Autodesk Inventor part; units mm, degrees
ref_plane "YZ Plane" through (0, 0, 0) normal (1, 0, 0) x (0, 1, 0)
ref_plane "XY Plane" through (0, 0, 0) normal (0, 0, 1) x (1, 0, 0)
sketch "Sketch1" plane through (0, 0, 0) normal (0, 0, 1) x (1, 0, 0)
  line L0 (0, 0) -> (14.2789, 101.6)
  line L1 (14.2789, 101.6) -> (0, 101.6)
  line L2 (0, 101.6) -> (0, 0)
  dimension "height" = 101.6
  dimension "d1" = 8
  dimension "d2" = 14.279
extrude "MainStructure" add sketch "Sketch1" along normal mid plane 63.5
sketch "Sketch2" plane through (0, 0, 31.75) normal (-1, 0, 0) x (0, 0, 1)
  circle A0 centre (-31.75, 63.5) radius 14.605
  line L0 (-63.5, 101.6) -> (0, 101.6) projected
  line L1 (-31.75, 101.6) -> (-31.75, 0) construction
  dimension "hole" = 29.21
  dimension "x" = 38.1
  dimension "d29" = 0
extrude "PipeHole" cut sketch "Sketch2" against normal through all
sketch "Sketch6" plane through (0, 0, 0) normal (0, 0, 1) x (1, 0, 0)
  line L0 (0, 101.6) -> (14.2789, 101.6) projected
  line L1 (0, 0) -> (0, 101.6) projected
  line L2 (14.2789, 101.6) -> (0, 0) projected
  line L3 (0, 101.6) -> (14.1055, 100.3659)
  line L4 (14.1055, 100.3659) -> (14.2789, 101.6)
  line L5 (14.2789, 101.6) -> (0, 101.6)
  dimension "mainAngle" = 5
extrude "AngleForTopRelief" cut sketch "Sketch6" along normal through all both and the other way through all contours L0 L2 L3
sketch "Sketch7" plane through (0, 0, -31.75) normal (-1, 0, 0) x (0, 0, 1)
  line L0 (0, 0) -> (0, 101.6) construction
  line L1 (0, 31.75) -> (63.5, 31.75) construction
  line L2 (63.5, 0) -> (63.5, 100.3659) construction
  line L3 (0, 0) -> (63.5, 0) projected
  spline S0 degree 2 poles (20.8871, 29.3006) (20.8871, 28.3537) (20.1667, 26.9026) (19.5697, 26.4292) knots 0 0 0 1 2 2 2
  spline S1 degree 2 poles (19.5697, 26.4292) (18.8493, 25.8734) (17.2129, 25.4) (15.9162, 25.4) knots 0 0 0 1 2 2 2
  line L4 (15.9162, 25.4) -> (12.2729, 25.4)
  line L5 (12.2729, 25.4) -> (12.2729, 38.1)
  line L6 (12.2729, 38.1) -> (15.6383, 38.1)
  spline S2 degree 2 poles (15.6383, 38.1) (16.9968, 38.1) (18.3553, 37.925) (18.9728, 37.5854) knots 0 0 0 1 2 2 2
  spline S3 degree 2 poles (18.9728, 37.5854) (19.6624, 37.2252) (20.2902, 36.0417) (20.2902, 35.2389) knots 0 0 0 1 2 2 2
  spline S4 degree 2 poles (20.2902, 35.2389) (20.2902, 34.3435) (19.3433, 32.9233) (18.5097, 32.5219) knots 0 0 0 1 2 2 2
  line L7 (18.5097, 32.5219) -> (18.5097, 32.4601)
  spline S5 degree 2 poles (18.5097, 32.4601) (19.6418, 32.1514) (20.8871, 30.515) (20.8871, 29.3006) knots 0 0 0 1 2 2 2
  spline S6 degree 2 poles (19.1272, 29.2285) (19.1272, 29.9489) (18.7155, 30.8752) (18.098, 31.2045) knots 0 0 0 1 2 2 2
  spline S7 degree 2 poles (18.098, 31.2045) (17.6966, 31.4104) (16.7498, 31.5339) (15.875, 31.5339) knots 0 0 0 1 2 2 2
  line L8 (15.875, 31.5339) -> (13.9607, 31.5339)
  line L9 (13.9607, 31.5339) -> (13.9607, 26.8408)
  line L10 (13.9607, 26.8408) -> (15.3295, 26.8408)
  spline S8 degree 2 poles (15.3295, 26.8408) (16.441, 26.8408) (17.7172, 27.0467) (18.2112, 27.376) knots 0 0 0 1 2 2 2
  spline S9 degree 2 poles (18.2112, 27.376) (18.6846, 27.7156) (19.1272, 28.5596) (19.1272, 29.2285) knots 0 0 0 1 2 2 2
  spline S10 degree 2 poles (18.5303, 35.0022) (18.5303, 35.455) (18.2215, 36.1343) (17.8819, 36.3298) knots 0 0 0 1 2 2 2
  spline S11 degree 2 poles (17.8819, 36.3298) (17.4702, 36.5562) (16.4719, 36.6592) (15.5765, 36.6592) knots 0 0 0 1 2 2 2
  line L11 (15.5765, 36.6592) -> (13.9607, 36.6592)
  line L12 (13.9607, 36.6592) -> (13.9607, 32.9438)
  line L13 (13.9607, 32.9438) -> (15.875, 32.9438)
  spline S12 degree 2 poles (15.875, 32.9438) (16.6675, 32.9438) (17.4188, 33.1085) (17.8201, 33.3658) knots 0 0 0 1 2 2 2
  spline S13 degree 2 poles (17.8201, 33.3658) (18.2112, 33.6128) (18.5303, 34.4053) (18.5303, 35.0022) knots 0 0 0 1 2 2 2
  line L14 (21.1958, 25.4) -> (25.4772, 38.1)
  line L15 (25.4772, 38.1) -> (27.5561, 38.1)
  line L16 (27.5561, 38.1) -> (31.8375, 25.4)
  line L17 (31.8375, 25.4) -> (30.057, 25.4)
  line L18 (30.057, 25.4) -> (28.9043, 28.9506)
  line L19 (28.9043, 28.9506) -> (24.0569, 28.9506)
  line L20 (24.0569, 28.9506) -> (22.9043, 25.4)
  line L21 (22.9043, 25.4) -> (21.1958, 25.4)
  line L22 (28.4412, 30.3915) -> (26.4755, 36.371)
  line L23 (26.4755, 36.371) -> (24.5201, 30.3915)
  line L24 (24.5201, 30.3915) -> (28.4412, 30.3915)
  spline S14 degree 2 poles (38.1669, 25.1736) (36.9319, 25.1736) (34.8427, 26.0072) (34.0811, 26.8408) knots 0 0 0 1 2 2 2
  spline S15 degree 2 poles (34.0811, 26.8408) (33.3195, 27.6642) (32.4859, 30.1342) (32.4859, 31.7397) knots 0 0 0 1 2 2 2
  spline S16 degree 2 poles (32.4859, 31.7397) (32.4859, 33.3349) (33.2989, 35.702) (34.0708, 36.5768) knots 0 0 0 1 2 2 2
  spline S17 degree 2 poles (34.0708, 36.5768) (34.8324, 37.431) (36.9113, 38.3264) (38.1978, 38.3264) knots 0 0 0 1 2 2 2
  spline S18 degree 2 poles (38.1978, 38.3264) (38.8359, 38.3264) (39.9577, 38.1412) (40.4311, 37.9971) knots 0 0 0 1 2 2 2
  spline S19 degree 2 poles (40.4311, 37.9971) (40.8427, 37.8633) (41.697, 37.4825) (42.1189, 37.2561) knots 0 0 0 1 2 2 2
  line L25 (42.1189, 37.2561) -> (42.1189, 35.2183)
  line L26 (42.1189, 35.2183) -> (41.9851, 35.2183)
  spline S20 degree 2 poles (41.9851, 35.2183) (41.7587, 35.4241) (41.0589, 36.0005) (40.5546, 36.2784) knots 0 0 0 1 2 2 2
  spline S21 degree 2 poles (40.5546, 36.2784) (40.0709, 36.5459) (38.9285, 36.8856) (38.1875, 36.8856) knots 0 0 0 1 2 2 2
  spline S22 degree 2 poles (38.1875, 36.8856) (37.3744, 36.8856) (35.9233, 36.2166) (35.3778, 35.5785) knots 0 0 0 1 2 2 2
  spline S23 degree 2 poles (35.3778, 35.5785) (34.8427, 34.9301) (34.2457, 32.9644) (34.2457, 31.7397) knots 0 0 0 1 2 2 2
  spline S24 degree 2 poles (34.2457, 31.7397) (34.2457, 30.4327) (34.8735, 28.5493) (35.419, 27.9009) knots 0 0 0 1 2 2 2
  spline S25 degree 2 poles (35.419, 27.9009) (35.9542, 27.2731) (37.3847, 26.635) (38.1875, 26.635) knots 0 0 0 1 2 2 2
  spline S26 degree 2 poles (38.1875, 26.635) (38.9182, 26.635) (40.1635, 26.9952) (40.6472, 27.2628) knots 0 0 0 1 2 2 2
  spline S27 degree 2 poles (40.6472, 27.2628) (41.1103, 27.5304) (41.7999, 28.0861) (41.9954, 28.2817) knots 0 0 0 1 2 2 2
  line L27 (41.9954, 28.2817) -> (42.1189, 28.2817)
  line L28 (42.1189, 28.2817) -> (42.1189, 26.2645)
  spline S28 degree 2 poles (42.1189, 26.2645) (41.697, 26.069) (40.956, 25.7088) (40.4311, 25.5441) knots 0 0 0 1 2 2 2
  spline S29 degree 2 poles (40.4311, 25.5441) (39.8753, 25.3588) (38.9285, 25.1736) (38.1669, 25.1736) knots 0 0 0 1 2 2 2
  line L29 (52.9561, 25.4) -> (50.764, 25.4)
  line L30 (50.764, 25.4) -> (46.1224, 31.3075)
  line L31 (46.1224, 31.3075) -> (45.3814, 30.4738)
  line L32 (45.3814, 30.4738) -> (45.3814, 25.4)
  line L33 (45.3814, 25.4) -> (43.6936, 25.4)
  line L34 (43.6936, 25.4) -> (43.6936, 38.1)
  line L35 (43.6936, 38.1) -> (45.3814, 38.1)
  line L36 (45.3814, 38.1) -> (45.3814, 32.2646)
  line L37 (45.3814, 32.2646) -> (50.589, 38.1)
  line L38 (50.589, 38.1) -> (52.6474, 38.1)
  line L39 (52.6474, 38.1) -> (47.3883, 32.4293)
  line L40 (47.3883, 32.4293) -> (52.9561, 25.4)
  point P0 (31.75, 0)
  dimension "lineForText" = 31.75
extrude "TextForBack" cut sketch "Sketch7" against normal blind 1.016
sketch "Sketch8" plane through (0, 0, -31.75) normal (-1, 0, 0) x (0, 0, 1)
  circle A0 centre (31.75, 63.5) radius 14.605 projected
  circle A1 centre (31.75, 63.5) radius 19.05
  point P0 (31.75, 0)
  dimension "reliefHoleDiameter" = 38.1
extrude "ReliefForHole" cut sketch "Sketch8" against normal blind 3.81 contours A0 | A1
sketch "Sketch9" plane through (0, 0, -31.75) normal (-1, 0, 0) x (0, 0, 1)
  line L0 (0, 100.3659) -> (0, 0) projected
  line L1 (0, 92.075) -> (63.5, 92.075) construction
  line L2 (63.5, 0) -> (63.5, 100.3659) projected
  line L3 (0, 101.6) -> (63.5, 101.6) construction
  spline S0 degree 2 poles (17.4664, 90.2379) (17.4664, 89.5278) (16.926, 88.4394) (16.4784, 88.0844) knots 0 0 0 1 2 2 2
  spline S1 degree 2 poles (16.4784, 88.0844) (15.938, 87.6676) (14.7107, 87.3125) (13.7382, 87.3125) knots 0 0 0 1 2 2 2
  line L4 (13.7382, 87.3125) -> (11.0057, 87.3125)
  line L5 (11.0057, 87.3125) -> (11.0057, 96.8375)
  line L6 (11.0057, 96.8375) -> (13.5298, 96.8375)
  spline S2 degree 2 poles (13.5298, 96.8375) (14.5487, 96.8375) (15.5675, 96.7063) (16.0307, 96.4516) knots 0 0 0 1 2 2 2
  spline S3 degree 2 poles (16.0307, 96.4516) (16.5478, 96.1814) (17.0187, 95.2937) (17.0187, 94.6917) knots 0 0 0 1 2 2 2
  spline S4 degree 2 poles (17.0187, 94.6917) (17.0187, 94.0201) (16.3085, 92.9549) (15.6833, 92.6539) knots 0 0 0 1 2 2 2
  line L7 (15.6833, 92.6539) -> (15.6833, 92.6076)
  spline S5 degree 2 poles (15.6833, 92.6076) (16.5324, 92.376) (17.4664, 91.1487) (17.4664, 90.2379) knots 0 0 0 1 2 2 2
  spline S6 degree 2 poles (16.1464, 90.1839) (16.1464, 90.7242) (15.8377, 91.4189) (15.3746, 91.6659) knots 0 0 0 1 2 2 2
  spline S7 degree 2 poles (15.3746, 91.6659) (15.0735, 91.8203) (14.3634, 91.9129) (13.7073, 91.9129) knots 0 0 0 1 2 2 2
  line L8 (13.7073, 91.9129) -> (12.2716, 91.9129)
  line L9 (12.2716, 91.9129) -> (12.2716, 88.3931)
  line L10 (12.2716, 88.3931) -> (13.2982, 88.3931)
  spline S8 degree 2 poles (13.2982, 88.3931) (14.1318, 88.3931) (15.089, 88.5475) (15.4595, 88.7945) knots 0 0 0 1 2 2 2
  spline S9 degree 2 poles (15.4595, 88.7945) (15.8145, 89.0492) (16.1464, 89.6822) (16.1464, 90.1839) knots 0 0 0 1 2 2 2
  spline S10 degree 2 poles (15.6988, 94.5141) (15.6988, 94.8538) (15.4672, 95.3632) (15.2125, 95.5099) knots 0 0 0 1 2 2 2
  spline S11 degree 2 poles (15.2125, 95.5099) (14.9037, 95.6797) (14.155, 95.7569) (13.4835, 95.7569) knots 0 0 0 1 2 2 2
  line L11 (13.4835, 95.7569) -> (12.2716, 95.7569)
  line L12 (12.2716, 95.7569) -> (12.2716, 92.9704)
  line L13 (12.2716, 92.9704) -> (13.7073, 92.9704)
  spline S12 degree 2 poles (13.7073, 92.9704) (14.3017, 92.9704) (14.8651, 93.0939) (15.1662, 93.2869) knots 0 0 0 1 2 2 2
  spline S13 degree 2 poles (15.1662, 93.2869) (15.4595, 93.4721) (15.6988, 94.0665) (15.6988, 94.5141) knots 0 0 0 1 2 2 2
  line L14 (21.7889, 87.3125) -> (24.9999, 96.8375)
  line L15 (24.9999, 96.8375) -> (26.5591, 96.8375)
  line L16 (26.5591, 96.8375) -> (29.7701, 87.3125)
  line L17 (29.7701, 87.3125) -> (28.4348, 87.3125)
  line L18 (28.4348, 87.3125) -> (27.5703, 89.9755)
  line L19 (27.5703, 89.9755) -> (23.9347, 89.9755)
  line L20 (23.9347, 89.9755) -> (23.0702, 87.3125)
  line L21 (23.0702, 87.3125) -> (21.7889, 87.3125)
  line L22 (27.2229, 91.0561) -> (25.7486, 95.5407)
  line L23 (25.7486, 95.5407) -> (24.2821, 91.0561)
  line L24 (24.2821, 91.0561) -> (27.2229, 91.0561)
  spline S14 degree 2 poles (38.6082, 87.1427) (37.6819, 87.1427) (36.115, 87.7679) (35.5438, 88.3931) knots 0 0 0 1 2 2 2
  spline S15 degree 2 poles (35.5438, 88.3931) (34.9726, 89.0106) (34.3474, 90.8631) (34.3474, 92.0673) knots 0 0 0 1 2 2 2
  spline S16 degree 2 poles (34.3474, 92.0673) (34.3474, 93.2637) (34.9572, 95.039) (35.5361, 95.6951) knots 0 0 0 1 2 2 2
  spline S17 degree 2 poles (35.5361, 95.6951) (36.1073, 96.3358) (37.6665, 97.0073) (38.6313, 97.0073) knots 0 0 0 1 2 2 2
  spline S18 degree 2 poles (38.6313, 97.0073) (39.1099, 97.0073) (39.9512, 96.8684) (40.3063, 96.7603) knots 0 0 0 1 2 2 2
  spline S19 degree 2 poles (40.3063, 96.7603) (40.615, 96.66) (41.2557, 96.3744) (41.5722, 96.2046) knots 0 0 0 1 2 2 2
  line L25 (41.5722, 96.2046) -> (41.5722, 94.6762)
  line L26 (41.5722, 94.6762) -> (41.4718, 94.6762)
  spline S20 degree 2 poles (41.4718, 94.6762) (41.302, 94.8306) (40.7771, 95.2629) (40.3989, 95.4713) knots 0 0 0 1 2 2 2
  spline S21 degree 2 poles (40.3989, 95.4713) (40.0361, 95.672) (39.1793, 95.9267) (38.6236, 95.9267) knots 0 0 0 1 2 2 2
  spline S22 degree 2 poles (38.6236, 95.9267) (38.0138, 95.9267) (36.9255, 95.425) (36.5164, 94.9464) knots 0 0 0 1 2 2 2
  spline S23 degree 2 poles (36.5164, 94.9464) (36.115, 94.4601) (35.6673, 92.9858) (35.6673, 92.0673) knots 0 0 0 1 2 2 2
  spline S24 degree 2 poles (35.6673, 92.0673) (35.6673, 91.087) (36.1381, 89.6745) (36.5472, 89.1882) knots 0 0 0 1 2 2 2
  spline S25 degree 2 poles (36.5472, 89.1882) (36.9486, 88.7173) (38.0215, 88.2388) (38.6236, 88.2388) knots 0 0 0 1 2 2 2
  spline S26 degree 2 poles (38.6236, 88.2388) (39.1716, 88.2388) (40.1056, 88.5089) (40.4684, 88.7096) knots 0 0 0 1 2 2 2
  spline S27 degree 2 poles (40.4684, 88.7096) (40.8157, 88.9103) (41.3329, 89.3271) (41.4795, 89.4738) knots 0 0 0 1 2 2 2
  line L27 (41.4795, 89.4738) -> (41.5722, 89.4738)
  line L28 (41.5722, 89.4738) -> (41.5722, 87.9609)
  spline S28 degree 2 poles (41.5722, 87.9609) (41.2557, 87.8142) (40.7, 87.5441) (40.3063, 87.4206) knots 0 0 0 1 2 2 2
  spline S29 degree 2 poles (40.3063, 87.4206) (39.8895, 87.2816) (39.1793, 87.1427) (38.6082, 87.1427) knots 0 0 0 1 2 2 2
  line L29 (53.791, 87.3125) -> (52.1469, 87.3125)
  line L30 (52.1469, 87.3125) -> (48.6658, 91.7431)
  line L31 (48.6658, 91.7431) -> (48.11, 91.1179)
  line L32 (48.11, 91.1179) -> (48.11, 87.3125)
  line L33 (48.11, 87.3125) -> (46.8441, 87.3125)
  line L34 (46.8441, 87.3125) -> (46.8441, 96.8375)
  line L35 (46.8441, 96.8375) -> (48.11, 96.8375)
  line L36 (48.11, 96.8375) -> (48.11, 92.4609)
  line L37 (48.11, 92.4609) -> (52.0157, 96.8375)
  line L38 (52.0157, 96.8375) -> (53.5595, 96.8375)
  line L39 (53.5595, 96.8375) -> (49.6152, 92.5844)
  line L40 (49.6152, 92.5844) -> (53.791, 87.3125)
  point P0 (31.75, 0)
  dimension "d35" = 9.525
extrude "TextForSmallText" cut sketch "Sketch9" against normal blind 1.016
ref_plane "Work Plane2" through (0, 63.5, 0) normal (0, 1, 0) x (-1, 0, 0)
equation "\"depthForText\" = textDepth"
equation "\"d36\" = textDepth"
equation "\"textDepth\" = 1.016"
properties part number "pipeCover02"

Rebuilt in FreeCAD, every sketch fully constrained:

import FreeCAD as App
import Part
import Sketcher
Q = App.Units.Quantity


def add_polygon(sketch, points):
    """Adds a closed chain of lines whose ends are joined by coincident constraints."""
    first, n = sketch.GeometryCount, len(points)
    for a, b in zip(points, points[1:] + points[:1]):
        sketch.addGeometry(Part.LineSegment(App.Vector(*a, 0), App.Vector(*b, 0)), False)
    for i in range(n):
        sketch.addConstraint(Sketcher.Constraint("Coincident", first + i, 2, first + (i + 1) % n, 1))

doc = App.newDocument("Part")
body = doc.addObject("PartDesign::Body", "Body")

sketch1 = body.newObject("Sketcher::SketchObject", "Sketch")
sketch1.AttachmentSupport = (doc.getObject("XY_Plane"), [""])
sketch1.MapMode = "FlatFace"
add_polygon(sketch1, [(0, 101.6), (0, 0), (14.2789, 101.6)])
sketch1.addConstraint([
    Sketcher.Constraint("Vertical", 0),
    Sketcher.Constraint("Horizontal", 2),
    Sketcher.Constraint("Coincident", 0, 2, -1, 1),
    Sketcher.Constraint("DistanceY", 0, 2, 0, 1, Q("4 in")),
    Sketcher.Constraint("Angle", 1, Q("82 deg")),
])
pad1 = body.newObject("PartDesign::Pad", "Pad")
pad1.Profile = sketch1
pad1.Length = Q("2.5 in")
pad1.Midplane = True

sketch2 = body.newObject("Sketcher::SketchObject", "Sketch001")
sketch2.AttachmentSupport = (doc.getObject("YZ_Plane"), [""])
sketch2.MapMode = "FlatFace"
sketch2.addGeometry(Part.Circle(App.Vector(63.5, 0, 0), App.Vector(0, 0, 1), 14.605), False)
sketch2.addConstraint([
    Sketcher.Constraint("PointOnObject", 0, 3, -1),
    Sketcher.Constraint("Diameter", 0, Q("1.15 in")),
    Sketcher.Constraint("DistanceX", -1, 1, 0, 3, Q("2.5 in")),
])
pocket1 = body.newObject("PartDesign::Pocket", "Pocket")
pocket1.Profile = sketch2
pocket1.Type = "ThroughAll"
pocket1.Reversed = True

sketch3 = body.newObject("Sketcher::SketchObject", "Sketch002")
sketch3.AttachmentSupport = (doc.getObject("XY_Plane"), [""])
sketch3.MapMode = "FlatFace"
add_polygon(sketch3, [(14.2789, 101.6), (0, 101.6), (14.10546, 100.365906)])
sketch3.addConstraint([
    Sketcher.Constraint("Horizontal", 0),
    Sketcher.Constraint("PointOnObject", 0, 2, -2),
    Sketcher.Constraint("Angle", 1, Q("-5 deg")),
    Sketcher.Constraint("DistanceY", -1, 1, 0, 2, Q("4 in")),
    Sketcher.Constraint("Angle", 2, Q("82 deg")),
    Sketcher.Constraint("DistanceX", 0, 2, 0, 1, Q("14.279 mm")),
])
pocket2 = body.newObject("PartDesign::Pocket", "Pocket001")
pocket2.Profile = sketch3
pocket2.Type = "ThroughAll"
pocket2.Midplane = True

sketch4 = body.newObject("Sketcher::SketchObject", "Sketch003")
sketch4.AttachmentSupport = (doc.getObject("YZ_Plane"), [""])
sketch4.MapMode = "FlatFace"
sketch4.addGeometry(Part.BSplineCurve([App.Vector(29.3006, -10.8629, 0), App.Vector(28.3537, -10.8629, 0), App.Vector(26.9026, -11.5833, 0), App.Vector(26.4292, -12.1803, 0)], [3, 1, 3], [0, 1, 2], False, 2, [1, 1, 1, 1], False), False)
sketch4.addGeometry(Part.BSplineCurve([App.Vector(32.4601, -13.2403, 0), App.Vector(32.1514, -12.1082, 0), App.Vector(30.515, -10.8629, 0), App.Vector(29.3006, -10.8629, 0)], [3, 1, 3], [0, 1, 2], False, 2, [1, 1, 1, 1], False), False)
sketch4.addGeometry(Part.LineSegment(App.Vector(32.4601, -13.2403, 0), App.Vector(32.5219, -13.2403, 0)), False)
sketch4.addGeometry(Part.BSplineCurve([App.Vector(35.2389, -11.4598, 0), App.Vector(34.3435, -11.4598, 0), App.Vector(32.9233, -12.4067, 0), App.Vector(32.5219, -13.2403, 0)], [3, 1, 3], [0, 1, 2], False, 2, [1, 1, 1, 1], False), False)
sketch4.addGeometry(Part.BSplineCurve([App.Vector(37.5854, -12.7772, 0), App.Vector(37.2252, -12.0876, 0), App.Vector(36.0417, -11.4598, 0), App.Vector(35.2389, -11.4598, 0)], [3, 1, 3], [0, 1, 2], False, 2, [1, 1, 1, 1], False), False)
sketch4.addGeometry(Part.BSplineCurve([App.Vector(38.1, -16.1117, 0), App.Vector(38.1, -14.7532, 0), App.Vector(37.925, -13.3947, 0), App.Vector(37.5854, -12.7772, 0)], [3, 1, 3], [0, 1, 2], False, 2, [1, 1, 1, 1], False), False)
sketch4.addGeometry(Part.LineSegment(App.Vector(38.1, -16.1117, 0), App.Vector(38.1, -19.4771, 0)), False)
sketch4.addGeometry(Part.LineSegment(App.Vector(38.1, -19.4771, 0), App.Vector(25.4, -19.4771, 0)), False)
sketch4.addGeometry(Part.LineSegment(App.Vector(25.4, -19.4771, 0), App.Vector(25.4, -15.8338, 0)), False)
sketch4.addGeometry(Part.BSplineCurve([App.Vector(26.4292, -12.1803, 0), App.Vector(25.8734, -12.9007, 0), App.Vector(25.4, -14.5371, 0), App.Vector(25.4, -15.8338, 0)], [3, 1, 3], [0, 1, 2], False, 2, [1, 1, 1, 1], False), False)
sketch4.addGeometry(Part.BSplineCurve([App.Vector(29.2285, -12.6228, 0), App.Vector(29.9489, -12.6228, 0), App.Vector(30.8752, -13.0345, 0), App.Vector(31.2045, -13.652, 0)], [3, 1, 3], [0, 1, 2], False, 2, [1, 1, 1, 1], False), False)
sketch4.addGeometry(Part.BSplineCurve([App.Vector(27.376, -13.5388, 0), App.Vector(27.7156, -13.0654, 0), App.Vector(28.5596, -12.6228, 0), App.Vector(29.2285, -12.6228, 0)], [3, 1, 3], [0, 1, 2], False, 2, [1, 1, 1, 1], False), False)
sketch4.addGeometry(Part.BSplineCurve([App.Vector(26.8408, -16.4205, 0), App.Vector(26.8408, -15.309, 0), App.Vector(27.0467, -14.0328, 0), App.Vector(27.376, -13.5388, 0)], [3, 1, 3], [0, 1, 2], False, 2, [1, 1, 1, 1], False), False)
sketch4.addGeometry(Part.LineSegment(App.Vector(26.8408, -16.4205, 0), App.Vector(26.8408, -17.7893, 0)), False)
sketch4.addGeometry(Part.LineSegment(App.Vector(26.8408, -17.7893, 0), App.Vector(31.5339, -17.7893, 0)), False)
sketch4.addGeometry(Part.LineSegment(App.Vector(31.5339, -17.7893, 0), App.Vector(31.5339, -15.875, 0)), False)
sketch4.addGeometry(Part.BSplineCurve([App.Vector(31.2045, -13.652, 0), App.Vector(31.4104, -14.0534, 0), App.Vector(31.5339, -15.0002, 0), App.Vector(31.5339, -15.875, 0)], [3, 1, 3], [0, 1, 2], False, 2, [1, 1, 1, 1], False), False)
sketch4.addGeometry(Part.BSplineCurve([App.Vector(35.0022, -13.2197, 0), App.Vector(35.455, -13.2197, 0), App.Vector(36.1343, -13.5285, 0), App.Vector(36.3298, -13.8681, 0)], [3, 1, 3], [0, 1, 2], False, 2, [1, 1, 1, 1], False), False)
sketch4.addGeometry(Part.BSplineCurve([App.Vector(33.3658, -13.9299, 0), App.Vector(33.6128, -13.5388, 0), App.Vector(34.4053, -13.2197, 0), App.Vector(35.0022, -13.2197, 0)], [3, 1, 3], [0, 1, 2], False, 2, [1, 1, 1, 1], False), False)
sketch4.addGeometry(Part.BSplineCurve([App.Vector(32.9438, -15.875, 0), App.Vector(32.9438, -15.0825, 0), App.Vector(33.1085, -14.3312, 0), App.Vector(33.3658, -13.9299, 0)], [3, 1, 3], [0, 1, 2], False, 2, [1, 1, 1, 1], False), False)
sketch4.addGeometry(Part.LineSegment(App.Vector(32.9438, -15.875, 0), App.Vector(32.9438, -17.7893, 0)), False)
sketch4.addGeometry(Part.LineSegment(App.Vector(32.9438, -17.7893, 0), App.Vector(36.6592, -17.7893, 0)), False)
sketch4.addGeometry(Part.LineSegment(App.Vector(36.6592, -17.7893, 0), App.Vector(36.6592, -16.1735, 0)), False)
sketch4.addGeometry(Part.BSplineCurve([App.Vector(36.3298, -13.8681, 0), App.Vector(36.5562, -14.2798, 0), App.Vector(36.6592, -15.2781, 0), App.Vector(36.6592, -16.1735, 0)], [3, 1, 3], [0, 1, 2], False, 2, [1, 1, 1, 1], False), False)
add_polygon(sketch4, [(38.1, -6.2728), (25.4, -10.5542), (25.4, -8.8457), (28.9506, -7.6931), (28.9506, -2.8457), (25.4, -1.693), (25.4, 0.0875), (38.1, -4.1939)])
add_polygon(sketch4, [(36.371, -5.2745), (30.3915, -3.3088), (30.3915, -7.2299)])
sketch4.addGeometry(Part.BSplineCurve([App.Vector(25.1736, 6.4169, 0), App.Vector(25.1736, 5.1819, 0), App.Vector(26.0072, 3.0927, 0), App.Vector(26.8408, 2.3311, 0)], [3, 1, 3], [0, 1, 2], False, 2, [1, 1, 1, 1], False), False)
sketch4.addGeometry(Part.BSplineCurve([App.Vector(25.5441, 8.6811, 0), App.Vector(25.3588, 8.1253, 0), App.Vector(25.1736, 7.1785, 0), App.Vector(25.1736, 6.4169, 0)], [3, 1, 3], [0, 1, 2], False, 2, [1, 1, 1, 1], False), False)
sketch4.addGeometry(Part.BSplineCurve([App.Vector(26.2645, 10.3689, 0), App.Vector(26.069, 9.947, 0), App.Vector(25.7088, 9.206, 0), App.Vector(25.5441, 8.6811, 0)], [3, 1, 3], [0, 1, 2], False, 2, [1, 1, 1, 1], False), False)
sketch4.addGeometry(Part.LineSegment(App.Vector(26.2645, 10.3689, 0), App.Vector(28.2817, 10.3689, 0)), False)
sketch4.addGeometry(Part.LineSegment(App.Vector(28.2817, 10.3689, 0), App.Vector(28.2817, 10.2454, 0)), False)
sketch4.addGeometry(Part.BSplineCurve([App.Vector(27.2628, 8.8972, 0), App.Vector(27.5304, 9.3603, 0), App.Vector(28.0861, 10.0499, 0), App.Vector(28.2817, 10.2454, 0)], [3, 1, 3], [0, 1, 2], False, 2, [1, 1, 1, 1], False), False)
sketch4.addGeometry(Part.BSplineCurve([App.Vector(26.635, 6.4375, 0), App.Vector(26.635, 7.1682, 0), App.Vector(26.9952, 8.4135, 0), App.Vector(27.2628, 8.8972, 0)], [3, 1, 3], [0, 1, 2], False, 2, [1, 1, 1, 1], False), False)
sketch4.addGeometry(Part.BSplineCurve([App.Vector(27.9009, 3.669, 0), App.Vector(27.2731, 4.2042, 0), App.Vector(26.635, 5.6347, 0), App.Vector(26.635, 6.4375, 0)], [3, 1, 3], [0, 1, 2], False, 2, [1, 1, 1, 1], False), False)
sketch4.addGeometry(Part.BSplineCurve([App.Vector(31.7397, 2.4957, 0), App.Vector(30.4327, 2.4957, 0), App.Vector(28.5493, 3.1235, 0), App.Vector(27.9009, 3.669, 0)], [3, 1, 3], [0, 1, 2], False, 2, [1, 1, 1, 1], False), False)
sketch4.addGeometry(Part.BSplineCurve([App.Vector(35.5785, 3.6278, 0), App.Vector(34.9301, 3.0927, 0), App.Vector(32.9644, 2.4957, 0), App.Vector(31.7397, 2.4957, 0)], [3, 1, 3], [0, 1, 2], False, 2, [1, 1, 1, 1], False), False)
sketch4.addGeometry(Part.BSplineCurve([App.Vector(36.8856, 6.4375, 0), App.Vector(36.8856, 5.6244, 0), App.Vector(36.2166, 4.1733, 0), App.Vector(35.5785, 3.6278, 0)], [3, 1, 3], [0, 1, 2], False, 2, [1, 1, 1, 1], False), False)
sketch4.addGeometry(Part.BSplineCurve([App.Vector(36.2784, 8.8046, 0), App.Vector(36.5459, 8.3209, 0), App.Vector(36.8856, 7.1785, 0), App.Vector(36.8856, 6.4375, 0)], [3, 1, 3], [0, 1, 2], False, 2, [1, 1, 1, 1], False), False)
sketch4.addGeometry(Part.BSplineCurve([App.Vector(35.2183, 10.2351, 0), App.Vector(35.4241, 10.0087, 0), App.Vector(36.0005, 9.3089, 0), App.Vector(36.2784, 8.8046, 0)], [3, 1, 3], [0, 1, 2], False, 2, [1, 1, 1, 1], False), False)
sketch4.addGeometry(Part.LineSegment(App.Vector(35.2183, 10.2351, 0), App.Vector(35.2183, 10.3689, 0)), False)
sketch4.addGeometry(Part.LineSegment(App.Vector(35.2183, 10.3689, 0), App.Vector(37.2561, 10.3689, 0)), False)
sketch4.addGeometry(Part.BSplineCurve([App.Vector(37.9971, 8.6811, 0), App.Vector(37.8633, 9.0927, 0), App.Vector(37.4825, 9.947, 0), App.Vector(37.2561, 10.3689, 0)], [3, 1, 3], [0, 1, 2], False, 2, [1, 1, 1, 1], False), False)
sketch4.addGeometry(Part.BSplineCurve([App.Vector(38.3264, 6.4478, 0), App.Vector(38.3264, 7.0859, 0), App.Vector(38.1412, 8.2077, 0), App.Vector(37.9971, 8.6811, 0)], [3, 1, 3], [0, 1, 2], False, 2, [1, 1, 1, 1], False), False)
sketch4.addGeometry(Part.BSplineCurve([App.Vector(36.5768, 2.3208, 0), App.Vector(37.431, 3.0824, 0), App.Vector(38.3264, 5.1613, 0), App.Vector(38.3264, 6.4478, 0)], [3, 1, 3], [0, 1, 2], False, 2, [1, 1, 1, 1], False), False)
sketch4.addGeometry(Part.BSplineCurve([App.Vector(31.7397, 0.7359, 0), App.Vector(33.3349, 0.7359, 0), App.Vector(35.702, 1.5489, 0), App.Vector(36.5768, 2.3208, 0)], [3, 1, 3], [0, 1, 2], False, 2, [1, 1, 1, 1], False), False)
sketch4.addGeometry(Part.BSplineCurve([App.Vector(26.8408, 2.3311, 0), App.Vector(27.6642, 1.5695, 0), App.Vector(30.1342, 0.7359, 0), App.Vector(31.7397, 0.7359, 0)], [3, 1, 3], [0, 1, 2], False, 2, [1, 1, 1, 1], False), False)
add_polygon(sketch4, [(25.4, 19.014), (25.4, 21.2061), (32.4293, 15.6383), (38.1, 20.8974), (38.1, 18.839), (32.2646, 13.6314), (38.1, 13.6314), (38.1, 11.9436), (25.4, 11.9436), (25.4, 13.6314), (30.4738, 13.6314), (31.3075, 14.3724)])
sketch4.addConstraint([
    Sketcher.Constraint("Block", 0),
    Sketcher.Constraint("Block", 1),
    Sketcher.Constraint("Block", 3),
    Sketcher.Constraint("Block", 4),
    Sketcher.Constraint("Block", 5),
    Sketcher.Constraint("Block", 9),
    Sketcher.Constraint("Block", 10),
    Sketcher.Constraint("Block", 11),
    Sketcher.Constraint("Block", 12),
    Sketcher.Constraint("Block", 16),
    Sketcher.Constraint("Block", 17),
    Sketcher.Constraint("Block", 18),
    Sketcher.Constraint("Block", 19),
    Sketcher.Constraint("Block", 23),
    Sketcher.Constraint("Block", 35),
    Sketcher.Constraint("Block", 36),
    Sketcher.Constraint("Block", 37),
    Sketcher.Constraint("Block", 40),
    Sketcher.Constraint("Block", 41),
    Sketcher.Constraint("Block", 42),
    Sketcher.Constraint("Block", 43),
    Sketcher.Constraint("Block", 44),
    Sketcher.Constraint("Block", 45),
    Sketcher.Constraint("Block", 46),
    Sketcher.Constraint("Block", 47),
    Sketcher.Constraint("Block", 50),
    Sketcher.Constraint("Block", 51),
    Sketcher.Constraint("Block", 52),
    Sketcher.Constraint("Block", 53),
    Sketcher.Constraint("Block", 54),
    Sketcher.Constraint("Coincident", 1, 1, 2, 1),
    Sketcher.Constraint("Coincident", 2, 2, 3, 2),
    Sketcher.Constraint("Coincident", 5, 1, 6, 1),
    Sketcher.Constraint("Coincident", 6, 2, 7, 1),
    Sketcher.Constraint("Coincident", 7, 2, 8, 1),
    Sketcher.Constraint("Coincident", 8, 2, 9, 2),
    Sketcher.Constraint("Coincident", 12, 1, 13, 1),
    Sketcher.Constraint("Coincident", 13, 2, 14, 1),
    Sketcher.Constraint("Coincident", 14, 2, 15, 1),
    Sketcher.Constraint("Coincident", 15, 2, 16, 2),
    Sketcher.Constraint("Coincident", 19, 1, 20, 1),
    Sketcher.Constraint("Coincident", 20, 2, 21, 1),
    Sketcher.Constraint("Coincident", 21, 2, 22, 1),
    Sketcher.Constraint("Coincident", 22, 2, 23, 2),
    Sketcher.Constraint("Coincident", 37, 1, 38, 1),
    Sketcher.Constraint("Coincident", 38, 2, 39, 1),
    Sketcher.Constraint("Coincident", 39, 2, 40, 2),
    Sketcher.Constraint("Coincident", 47, 1, 48, 1),
    Sketcher.Constraint("Coincident", 48, 2, 49, 1),
    Sketcher.Constraint("Coincident", 49, 2, 50, 2),
    Sketcher.Constraint("Vertical", 6),
    Sketcher.Constraint("Horizontal", 7),
    Sketcher.Constraint("Vertical", 8),
    Sketcher.Constraint("Vertical", 13),
    Sketcher.Constraint("Horizontal", 14),
    Sketcher.Constraint("Vertical", 15),
    Sketcher.Constraint("Vertical", 20),
    Sketcher.Constraint("Horizontal", 21),
    Sketcher.Constraint("Vertical", 22),
    Sketcher.Constraint("Vertical", 25),
    Sketcher.Constraint("Vertical", 27),
    Sketcher.Constraint("Vertical", 29),
    Sketcher.Constraint("Vertical", 31),
    Sketcher.Constraint("Vertical", 33),
    Sketcher.Constraint("Horizontal", 38),
    Sketcher.Constraint("Vertical", 39),
    Sketcher.Constraint("Vertical", 48),
    Sketcher.Constraint("Horizontal", 49),
    Sketcher.Constraint("Vertical", 55),
    Sketcher.Constraint("Vertical", 58),
    Sketcher.Constraint("Horizontal", 60),
    Sketcher.Constraint("Vertical", 61),
    Sketcher.Constraint("Horizontal", 62),
    Sketcher.Constraint("Vertical", 63),
    Sketcher.Constraint("Horizontal", 64),
    Sketcher.Constraint("DistanceX", 62, 2, 62, 1, Q("0.5 in")),
    Sketcher.Constraint("DistanceX", -1, 1, 24, 2, Q("1 in")),
    Sketcher.Constraint("DistanceX", -1, 1, 28, 2, Q("1 in")),
    Sketcher.Constraint("DistanceX", -1, 1, 55, 2, Q("1 in")),
    Sketcher.Constraint("DistanceX", -1, 1, 62, 2, Q("1 in")),
    Sketcher.Constraint("DistanceX", -1, 1, 30, 2, Q("1.5 in")),
    Sketcher.Constraint("DistanceX", -1, 1, 57, 2, Q("1.5 in")),
    Sketcher.Constraint("DistanceY", 6, 2, 6, 1, Q("0.1325 in")),
    Sketcher.Constraint("DistanceY", 13, 2, 13, 1, Q("0.0539 in")),
    Sketcher.Constraint("DistanceY", 29, 1, 29, 2, Q("0.0701 in")),
    Sketcher.Constraint("DistanceY", 55, 1, 55, 2, Q("0.0863 in")),
    Sketcher.Constraint("DistanceY", 25, 2, 32, 2, Q("0.218 in")),
    Sketcher.Constraint("DistanceY", 56, 2, 58, 2, Q("0.126 in")),
    Sketcher.Constraint("DistanceY", 59, 2, 56, 2, Q("0.079 in")),
    Sketcher.Constraint("DistanceY", 49, 2, 61, 2, Q("0.062 in")),
    Sketcher.Constraint("DistanceY", 63, 2, 56, 2, Q("0.079 in")),
    Sketcher.Constraint("DistanceX", 64, 2, 56, 2, Q("0.077 in")),
    Sketcher.Constraint("Distance", 32, Q("0.2478 in")),
    Sketcher.Constraint("Distance", 57, Q("0.3045 in")),
    Sketcher.Constraint("DistanceX", 60, 1, 60, 2, Q("5.8354 mm")),
    Sketcher.Constraint("DistanceX", 64, 1, 64, 2, Q("5.0738 mm")),
    Sketcher.Constraint("DistanceY", 20, 2, 20, 1, Q("1.9143 mm")),
    Sketcher.Constraint("DistanceY", 25, 1, 25, 2, Q("1.7085 mm")),
    Sketcher.Constraint("DistanceY", 27, 1, 27, 2, Q("4.8474 mm")),
    Sketcher.Constraint("DistanceY", 31, 2, 31, 1, Q("2.079 mm")),
    Sketcher.Constraint("DistanceY", 33, 2, 33, 1, Q("3.921 mm")),
    Sketcher.Constraint("DistanceY", 61, 2, 61, 1, Q("1.6878 mm")),
    Sketcher.Constraint("DistanceY", 7, 2, 24, 2, Q("0.3513 in")),
    Sketcher.Constraint("DistanceX", 26, 2, 2, 2, Q("0.1406 in")),
    Sketcher.Constraint("DistanceY", 2, 2, 26, 2, Q("0.2184 in")),
    Sketcher.Constraint("DistanceY", 25, 2, 28, 2, Q("0.2816 in")),
    Sketcher.Constraint("DistanceY", 2, 2, 31, 2, Q("0.2743 in")),
    Sketcher.Constraint("DistanceY", 31, 2, 34, 2, Q("0.0393 in")),
    Sketcher.Constraint("DistanceY", 56, 2, 55, 2, Q("0.2192 in")),
    Sketcher.Constraint("Distance", 65, Q("1.1154 mm")),
    Sketcher.Constraint("Distance", 66, Q("7.5129 mm")),
    Sketcher.Constraint("DistanceX", -1, 1, 32, 2, Q("30.3915 mm")),
])
pocket3 = body.newObject("PartDesign::Pocket", "Pocket002")
pocket3.Profile = sketch4
pocket3.Length = Q("0.04 in")
pocket3.Reversed = True

sketch5 = body.newObject("Sketcher::SketchObject", "Sketch004")
sketch5.AttachmentSupport = (doc.getObject("YZ_Plane"), [""])
sketch5.MapMode = "FlatFace"
sketch5.addGeometry(Part.Circle(App.Vector(63.5, 0, 0), App.Vector(0, 0, 1), 19.05), False)
sketch5.addConstraint([
    Sketcher.Constraint("PointOnObject", 0, 3, -1),
    Sketcher.Constraint("Diameter", 0, Q("1.5 in")),
    Sketcher.Constraint("DistanceX", -1, 1, 0, 3, Q("2.5 in")),
])
pocket4 = body.newObject("PartDesign::Pocket", "Pocket003")
pocket4.Profile = sketch5
pocket4.Length = Q("0.15 in")
pocket4.Reversed = True

sketch6 = body.newObject("Sketcher::SketchObject", "Sketch005")
sketch6.AttachmentSupport = (doc.getObject("YZ_Plane"), [""])
sketch6.MapMode = "FlatFace"
sketch6.addGeometry(Part.BSplineCurve([App.Vector(90.2379, -14.2836, 0), App.Vector(89.5278, -14.2836, 0), App.Vector(88.4394, -14.824, 0), App.Vector(88.0844, -15.2716, 0)], [3, 1, 3], [0, 1, 2], False, 2, [1, 1, 1, 1], False), False)
sketch6.addGeometry(Part.BSplineCurve([App.Vector(92.6076, -16.0667, 0), App.Vector(92.376, -15.2176, 0), App.Vector(91.1487, -14.2836, 0), App.Vector(90.2379, -14.2836, 0)], [3, 1, 3], [0, 1, 2], False, 2, [1, 1, 1, 1], False), False)
sketch6.addGeometry(Part.LineSegment(App.Vector(92.6076, -16.0667, 0), App.Vector(92.6539, -16.0667, 0)), False)
sketch6.addGeometry(Part.BSplineCurve([App.Vector(94.6917, -14.7313, 0), App.Vector(94.0201, -14.7313, 0), App.Vector(92.9549, -15.4415, 0), App.Vector(92.6539, -16.0667, 0)], [3, 1, 3], [0, 1, 2], False, 2, [1, 1, 1, 1], False), False)
sketch6.addGeometry(Part.BSplineCurve([App.Vector(96.4516, -15.7193, 0), App.Vector(96.1814, -15.2022, 0), App.Vector(95.2937, -14.7313, 0), App.Vector(94.6917, -14.7313, 0)], [3, 1, 3], [0, 1, 2], False, 2, [1, 1, 1, 1], False), False)
sketch6.addGeometry(Part.BSplineCurve([App.Vector(96.8375, -18.2202, 0), App.Vector(96.8375, -17.2013, 0), App.Vector(96.7063, -16.1825, 0), App.Vector(96.4516, -15.7193, 0)], [3, 1, 3], [0, 1, 2], False, 2, [1, 1, 1, 1], False), False)
sketch6.addGeometry(Part.LineSegment(App.Vector(96.8375, -18.2202, 0), App.Vector(96.8375, -20.7443, 0)), False)
sketch6.addGeometry(Part.LineSegment(App.Vector(96.8375, -20.7443, 0), App.Vector(87.3125, -20.7443, 0)), False)
sketch6.addGeometry(Part.LineSegment(App.Vector(87.3125, -20.7443, 0), App.Vector(87.3125, -18.0118, 0)), False)
sketch6.addGeometry(Part.BSplineCurve([App.Vector(88.0844, -15.2716, 0), App.Vector(87.6676, -15.812, 0), App.Vector(87.3125, -17.0393, 0), App.Vector(87.3125, -18.0118, 0)], [3, 1, 3], [0, 1, 2], False, 2, [1, 1, 1, 1], False), False)
sketch6.addGeometry(Part.BSplineCurve([App.Vector(90.1839, -15.6036, 0), App.Vector(90.7242, -15.6036, 0), App.Vector(91.4189, -15.9123, 0), App.Vector(91.6659, -16.3754, 0)], [3, 1, 3], [0, 1, 2], False, 2, [1, 1, 1, 1], False), False)
sketch6.addGeometry(Part.BSplineCurve([App.Vector(88.7945, -16.2905, 0), App.Vector(89.0492, -15.9355, 0), App.Vector(89.6822, -15.6036, 0), App.Vector(90.1839, -15.6036, 0)], [3, 1, 3], [0, 1, 2], False, 2, [1, 1, 1, 1], False), False)
sketch6.addGeometry(Part.BSplineCurve([App.Vector(88.3931, -18.4518, 0), App.Vector(88.3931, -17.6182, 0), App.Vector(88.5475, -16.661, 0), App.Vector(88.7945, -16.2905, 0)], [3, 1, 3], [0, 1, 2], False, 2, [1, 1, 1, 1], False), False)
sketch6.addGeometry(Part.LineSegment(App.Vector(88.3931, -18.4518, 0), App.Vector(88.3931, -19.4784, 0)), False)
sketch6.addGeometry(Part.LineSegment(App.Vector(88.3931, -19.4784, 0), App.Vector(91.9129, -19.4784, 0)), False)
sketch6.addGeometry(Part.LineSegment(App.Vector(91.9129, -19.4784, 0), App.Vector(91.9129, -18.0427, 0)), False)
sketch6.addGeometry(Part.BSplineCurve([App.Vector(91.6659, -16.3754, 0), App.Vector(91.8203, -16.6765, 0), App.Vector(91.9129, -17.3866, 0), App.Vector(91.9129, -18.0427, 0)], [3, 1, 3], [0, 1, 2], False, 2, [1, 1, 1, 1], False), False)
sketch6.addGeometry(Part.BSplineCurve([App.Vector(94.5141, -16.0512, 0), App.Vector(94.8538, -16.0512, 0), App.Vector(95.3632, -16.2828, 0), App.Vector(95.5099, -16.5375, 0)], [3, 1, 3], [0, 1, 2], False, 2, [1, 1, 1, 1], False), False)
sketch6.addGeometry(Part.BSplineCurve([App.Vector(93.2869, -16.5838, 0), App.Vector(93.4721, -16.2905, 0), App.Vector(94.0665, -16.0512, 0), App.Vector(94.5141, -16.0512, 0)], [3, 1, 3], [0, 1, 2], False, 2, [1, 1, 1, 1], False), False)
sketch6.addGeometry(Part.BSplineCurve([App.Vector(92.9704, -18.0427, 0), App.Vector(92.9704, -17.4483, 0), App.Vector(93.0939, -16.8849, 0), App.Vector(93.2869, -16.5838, 0)], [3, 1, 3], [0, 1, 2], False, 2, [1, 1, 1, 1], False), False)
sketch6.addGeometry(Part.LineSegment(App.Vector(92.9704, -18.0427, 0), App.Vector(92.9704, -19.4784, 0)), False)
sketch6.addGeometry(Part.LineSegment(App.Vector(92.9704, -19.4784, 0), App.Vector(95.7569, -19.4784, 0)), False)
sketch6.addGeometry(Part.LineSegment(App.Vector(95.7569, -19.4784, 0), App.Vector(95.7569, -18.2665, 0)), False)
sketch6.addGeometry(Part.BSplineCurve([App.Vector(95.5099, -16.5375, 0), App.Vector(95.6797, -16.8463, 0), App.Vector(95.7569, -17.595, 0), App.Vector(95.7569, -18.2665, 0)], [3, 1, 3], [0, 1, 2], False, 2, [1, 1, 1, 1], False), False)
add_polygon(sketch6, [(96.8375, -6.7501), (87.3125, -9.9611), (87.3125, -8.6798), (89.9755, -7.8153), (89.9755, -4.1797), (87.3125, -3.3152), (87.3125, -1.9799), (96.8375, -5.1909)])
add_polygon(sketch6, [(95.5407, -6.0014), (91.0561, -4.5271), (91.0561, -7.4679)])
sketch6.addGeometry(Part.BSplineCurve([App.Vector(87.1427, 6.8582, 0), App.Vector(87.1427, 5.9319, 0), App.Vector(87.7679, 4.365, 0), App.Vector(88.3931, 3.7938, 0)], [3, 1, 3], [0, 1, 2], False, 2, [1, 1, 1, 1], False), False)
sketch6.addGeometry(Part.BSplineCurve([App.Vector(87.4206, 8.5563, 0), App.Vector(87.2816, 8.1395, 0), App.Vector(87.1427, 7.4293, 0), App.Vector(87.1427, 6.8582, 0)], [3, 1, 3], [0, 1, 2], False, 2, [1, 1, 1, 1], False), False)
sketch6.addGeometry(Part.BSplineCurve([App.Vector(87.9609, 9.8222, 0), App.Vector(87.8142, 9.5057, 0), App.Vector(87.5441, 8.95, 0), App.Vector(87.4206, 8.5563, 0)], [3, 1, 3], [0, 1, 2], False, 2, [1, 1, 1, 1], False), False)
sketch6.addGeometry(Part.LineSegment(App.Vector(87.9609, 9.8222, 0), App.Vector(89.4738, 9.8222, 0)), False)
sketch6.addGeometry(Part.LineSegment(App.Vector(89.4738, 9.8222, 0), App.Vector(89.4738, 9.7295, 0)), False)
sketch6.addGeometry(Part.BSplineCurve([App.Vector(88.7096, 8.7184, 0), App.Vector(88.9103, 9.0657, 0), App.Vector(89.3271, 9.5829, 0), App.Vector(89.4738, 9.7295, 0)], [3, 1, 3], [0, 1, 2], False, 2, [1, 1, 1, 1], False), False)
sketch6.addGeometry(Part.BSplineCurve([App.Vector(88.2388, 6.8736, 0), App.Vector(88.2388, 7.4216, 0), App.Vector(88.5089, 8.3556, 0), App.Vector(88.7096, 8.7184, 0)], [3, 1, 3], [0, 1, 2], False, 2, [1, 1, 1, 1], False), False)
sketch6.addGeometry(Part.BSplineCurve([App.Vector(89.1882, 4.7972, 0), App.Vector(88.7173, 5.1986, 0), App.Vector(88.2388, 6.2715, 0), App.Vector(88.2388, 6.8736, 0)], [3, 1, 3], [0, 1, 2], False, 2, [1, 1, 1, 1], False), False)
sketch6.addGeometry(Part.BSplineCurve([App.Vector(92.0673, 3.9173, 0), App.Vector(91.087, 3.9173, 0), App.Vector(89.6745, 4.3881, 0), App.Vector(89.1882, 4.7972, 0)], [3, 1, 3], [0, 1, 2], False, 2, [1, 1, 1, 1], False), False)
sketch6.addGeometry(Part.BSplineCurve([App.Vector(94.9464, 4.7664, 0), App.Vector(94.4601, 4.365, 0), App.Vector(92.9858, 3.9173, 0), App.Vector(92.0673, 3.9173, 0)], [3, 1, 3], [0, 1, 2], False, 2, [1, 1, 1, 1], False), False)
sketch6.addGeometry(Part.BSplineCurve([App.Vector(95.9267, 6.8736, 0), App.Vector(95.9267, 6.2638, 0), App.Vector(95.425, 5.1755, 0), App.Vector(94.9464, 4.7664, 0)], [3, 1, 3], [0, 1, 2], False, 2, [1, 1, 1, 1], False), False)
sketch6.addGeometry(Part.BSplineCurve([App.Vector(95.4713, 8.6489, 0), App.Vector(95.672, 8.2861, 0), App.Vector(95.9267, 7.4293, 0), App.Vector(95.9267, 6.8736, 0)], [3, 1, 3], [0, 1, 2], False, 2, [1, 1, 1, 1], False), False)
sketch6.addGeometry(Part.BSplineCurve([App.Vector(94.6762, 9.7218, 0), App.Vector(94.8306, 9.552, 0), App.Vector(95.2629, 9.0271, 0), App.Vector(95.4713, 8.6489, 0)], [3, 1, 3], [0, 1, 2], False, 2, [1, 1, 1, 1], False), False)
sketch6.addGeometry(Part.LineSegment(App.Vector(94.6762, 9.7218, 0), App.Vector(94.6762, 9.8222, 0)), False)
sketch6.addGeometry(Part.LineSegment(App.Vector(94.6762, 9.8222, 0), App.Vector(96.2046, 9.8222, 0)), False)
sketch6.addGeometry(Part.BSplineCurve([App.Vector(96.7603, 8.5563, 0), App.Vector(96.66, 8.865, 0), App.Vector(96.3744, 9.5057, 0), App.Vector(96.2046, 9.8222, 0)], [3, 1, 3], [0, 1, 2], False, 2, [1, 1, 1, 1], False), False)
sketch6.addGeometry(Part.BSplineCurve([App.Vector(97.0073, 6.8813, 0), App.Vector(97.0073, 7.3599, 0), App.Vector(96.8684, 8.2012, 0), App.Vector(96.7603, 8.5563, 0)], [3, 1, 3], [0, 1, 2], False, 2, [1, 1, 1, 1], False), False)
sketch6.addGeometry(Part.BSplineCurve([App.Vector(95.6951, 3.7861, 0), App.Vector(96.3358, 4.3573, 0), App.Vector(97.0073, 5.9165, 0), App.Vector(97.0073, 6.8813, 0)], [3, 1, 3], [0, 1, 2], False, 2, [1, 1, 1, 1], False), False)
sketch6.addGeometry(Part.BSplineCurve([App.Vector(92.0673, 2.5974, 0), App.Vector(93.2637, 2.5974, 0), App.Vector(95.039, 3.2072, 0), App.Vector(95.6951, 3.7861, 0)], [3, 1, 3], [0, 1, 2], False, 2, [1, 1, 1, 1], False), False)
sketch6.addGeometry(Part.BSplineCurve([App.Vector(88.3931, 3.7938, 0), App.Vector(89.0106, 3.2226, 0), App.Vector(90.8631, 2.5974, 0), App.Vector(92.0673, 2.5974, 0)], [3, 1, 3], [0, 1, 2], False, 2, [1, 1, 1, 1], False), False)
add_polygon(sketch6, [(87.3125, 20.3969), (87.3125, 22.041), (92.5844, 17.8652), (96.8375, 21.8095), (96.8375, 20.2657), (92.4609, 16.36), (96.8375, 16.36), (96.8375, 15.0941), (87.3125, 15.0941), (87.3125, 16.36), (91.1179, 16.36), (91.7431, 16.9158)])
sketch6.addConstraint([
    Sketcher.Constraint("Block", 0),
    Sketcher.Constraint("Block", 1),
    Sketcher.Constraint("Block", 3),
    Sketcher.Constraint("Block", 4),
    Sketcher.Constraint("Block", 5),
    Sketcher.Constraint("Block", 9),
    Sketcher.Constraint("Block", 10),
    Sketcher.Constraint("Block", 11),
    Sketcher.Constraint("Block", 12),
    Sketcher.Constraint("Block", 16),
    Sketcher.Constraint("Block", 17),
    Sketcher.Constraint("Block", 18),
    Sketcher.Constraint("Block", 19),
    Sketcher.Constraint("Block", 23),
    Sketcher.Constraint("Block", 35),
    Sketcher.Constraint("Block", 36),
    Sketcher.Constraint("Block", 37),
    Sketcher.Constraint("Block", 40),
    Sketcher.Constraint("Block", 41),
    Sketcher.Constraint("Block", 42),
    Sketcher.Constraint("Block", 43),
    Sketcher.Constraint("Block", 44),
    Sketcher.Constraint("Block", 45),
    Sketcher.Constraint("Block", 46),
    Sketcher.Constraint("Block", 47),
    Sketcher.Constraint("Block", 50),
    Sketcher.Constraint("Block", 51),
    Sketcher.Constraint("Block", 52),
    Sketcher.Constraint("Block", 53),
    Sketcher.Constraint("Block", 54),
    Sketcher.Constraint("Coincident", 1, 1, 2, 1),
    Sketcher.Constraint("Coincident", 2, 2, 3, 2),
    Sketcher.Constraint("Coincident", 5, 1, 6, 1),
    Sketcher.Constraint("Coincident", 6, 2, 7, 1),
    Sketcher.Constraint("Coincident", 7, 2, 8, 1),
    Sketcher.Constraint("Coincident", 8, 2, 9, 2),
    Sketcher.Constraint("Coincident", 12, 1, 13, 1),
    Sketcher.Constraint("Coincident", 13, 2, 14, 1),
    Sketcher.Constraint("Coincident", 14, 2, 15, 1),
    Sketcher.Constraint("Coincident", 15, 2, 16, 2),
    Sketcher.Constraint("Coincident", 19, 1, 20, 1),
    Sketcher.Constraint("Coincident", 20, 2, 21, 1),
    Sketcher.Constraint("Coincident", 21, 2, 22, 1),
    Sketcher.Constraint("Coincident", 22, 2, 23, 2),
    Sketcher.Constraint("Coincident", 37, 1, 38, 1),
    Sketcher.Constraint("Coincident", 38, 2, 39, 1),
    Sketcher.Constraint("Coincident", 39, 2, 40, 2),
    Sketcher.Constraint("Coincident", 47, 1, 48, 1),
    Sketcher.Constraint("Coincident", 48, 2, 49, 1),
    Sketcher.Constraint("Coincident", 49, 2, 50, 2),
    Sketcher.Constraint("Vertical", 6),
    Sketcher.Constraint("Horizontal", 7),
    Sketcher.Constraint("Vertical", 8),
    Sketcher.Constraint("Vertical", 13),
    Sketcher.Constraint("Horizontal", 14),
    Sketcher.Constraint("Vertical", 15),
    Sketcher.Constraint("Vertical", 20),
    Sketcher.Constraint("Horizontal", 21),
    Sketcher.Constraint("Vertical", 22),
    Sketcher.Constraint("Vertical", 25),
    Sketcher.Constraint("Vertical", 27),
    Sketcher.Constraint("Vertical", 29),
    Sketcher.Constraint("Vertical", 31),
    Sketcher.Constraint("Vertical", 33),
    Sketcher.Constraint("Horizontal", 38),
    Sketcher.Constraint("Vertical", 39),
    Sketcher.Constraint("Vertical", 48),
    Sketcher.Constraint("Horizontal", 49),
    Sketcher.Constraint("Vertical", 55),
    Sketcher.Constraint("Vertical", 58),
    Sketcher.Constraint("Horizontal", 60),
    Sketcher.Constraint("Vertical", 61),
    Sketcher.Constraint("Horizontal", 62),
    Sketcher.Constraint("Vertical", 63),
    Sketcher.Constraint("Horizontal", 64),
    Sketcher.Constraint("DistanceX", 62, 2, 62, 1, Q("0.375 in")),
    Sketcher.Constraint("DistanceX", 28, 2, 30, 2, Q("0.375 in")),
    Sketcher.Constraint("DistanceX", 25, 2, 30, 2, Q("0.375 in")),
    Sketcher.Constraint("DistanceX", 55, 2, 57, 2, Q("0.375 in")),
    Sketcher.Constraint("DistanceX", 60, 1, 60, 2, Q("0.1723 in")),
    Sketcher.Constraint("DistanceX", -1, 1, 24, 2, Q("3.4375 in")),
    Sketcher.Constraint("DistanceY", 33, 2, -1, 1, Q("0.294 in")),
    Sketcher.Constraint("DistanceX", -1, 1, 55, 2, Q("3.4375 in")),
    Sketcher.Constraint("DistanceX", -1, 1, 60, 2, Q("3.8125 in")),
    Sketcher.Constraint("DistanceY", 2, 2, 27, 2, Q("0.468 in")),
    Sketcher.Constraint("DistanceY", 29, 2, 39, 2, Q("0.461 in")),
    Sketcher.Constraint("DistanceX", 64, 1, 64, 2, Q("3.8054 mm")),
    Sketcher.Constraint("DistanceY", 6, 2, 6, 1, Q("2.524 mm")),
    Sketcher.Constraint("DistanceY", 13, 2, 13, 1, Q("1.0266 mm")),
    Sketcher.Constraint("DistanceY", 20, 2, 20, 1, Q("1.4357 mm")),
    Sketcher.Constraint("DistanceY", 25, 1, 25, 2, Q("1.2813 mm")),
    Sketcher.Constraint("DistanceY", 27, 1, 27, 2, Q("3.6356 mm")),
    Sketcher.Constraint("DistanceY", 29, 1, 29, 2, Q("1.3353 mm")),
    Sketcher.Constraint("DistanceY", 31, 2, 31, 1, Q("1.5592 mm")),
    Sketcher.Constraint("DistanceY", 33, 2, 33, 1, Q("2.9408 mm")),
    Sketcher.Constraint("DistanceY", 55, 1, 55, 2, Q("1.644 mm")),
    Sketcher.Constraint("DistanceY", 58, 2, 58, 1, Q("1.5438 mm")),
    Sketcher.Constraint("DistanceY", 61, 2, 61, 1, Q("1.266 mm")),
    Sketcher.Constraint("DistanceY", 63, 1, 63, 2, Q("1.266 mm")),
    Sketcher.Constraint("DistanceY", -1, 1, 59, 2, Q("0.6441 in")),
    Sketcher.Constraint("DistanceY", 13, 2, 24, 2, Q("0.3747 in")),
    Sketcher.Constraint("DistanceY", 30, 2, 27, 2, Q("0.0398 in")),
    Sketcher.Constraint("DistanceY", 34, 2, 30, 2, Q("0.0319 in")),
    Sketcher.Constraint("DistanceX", 26, 2, 34, 2, Q("0.2191 in")),
    Sketcher.Constraint("DistanceX", 38, 2, 32, 2, Q("0.0623 in")),
    Sketcher.Constraint("DistanceY", 39, 2, 55, 2, Q("0.4847 in")),
    Sketcher.Constraint("DistanceY", 56, 2, 55, 2, Q("0.1644 in")),
    Sketcher.Constraint("DistanceY", 56, 2, 58, 2, Q("0.0945 in")),
    Sketcher.Constraint("Distance", 26, Q("2.7998 mm")),
    Sketcher.Constraint("Distance", 56, Q("6.7253 mm")),
    Sketcher.Constraint("Distance", 65, Q("0.8365 mm")),
    Sketcher.Constraint("Distance", 66, Q("5.6346 mm")),
])
pocket5 = body.newObject("PartDesign::Pocket", "Pocket004")
pocket5.Profile = sketch6
pocket5.Length = Q("0.04 in")
pocket5.Reversed = True

doc.recompute()
